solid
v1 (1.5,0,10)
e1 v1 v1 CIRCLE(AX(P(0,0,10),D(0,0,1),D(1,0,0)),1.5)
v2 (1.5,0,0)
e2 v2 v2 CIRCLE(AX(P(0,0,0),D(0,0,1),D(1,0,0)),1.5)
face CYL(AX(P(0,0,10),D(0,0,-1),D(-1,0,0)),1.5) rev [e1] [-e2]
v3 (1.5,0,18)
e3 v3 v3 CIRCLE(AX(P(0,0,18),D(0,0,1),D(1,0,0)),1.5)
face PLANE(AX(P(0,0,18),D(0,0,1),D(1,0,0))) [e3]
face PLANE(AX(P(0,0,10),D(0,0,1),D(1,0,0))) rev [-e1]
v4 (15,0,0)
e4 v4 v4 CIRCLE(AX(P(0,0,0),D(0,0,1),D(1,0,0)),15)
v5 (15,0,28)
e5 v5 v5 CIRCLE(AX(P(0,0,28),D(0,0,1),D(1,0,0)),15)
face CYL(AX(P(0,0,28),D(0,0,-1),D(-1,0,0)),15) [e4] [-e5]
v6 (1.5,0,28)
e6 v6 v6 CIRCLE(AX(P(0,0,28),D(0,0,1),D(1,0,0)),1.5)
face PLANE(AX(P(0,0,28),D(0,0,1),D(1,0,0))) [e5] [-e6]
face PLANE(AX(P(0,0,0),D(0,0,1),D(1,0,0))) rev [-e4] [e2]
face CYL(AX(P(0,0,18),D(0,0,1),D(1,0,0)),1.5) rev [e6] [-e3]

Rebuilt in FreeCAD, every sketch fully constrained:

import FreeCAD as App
import Part
import Sketcher
from FreeCAD import Vector
Q = App.Units.Quantity

doc = App.newDocument("Part")
body = doc.addObject("PartDesign::Body", "Body")

sketch1 = body.newObject("Sketcher::SketchObject", "Sketch")
sketch1.AttachmentSupport = (doc.getObject("XY_Plane"), [""])
sketch1.MapMode = "FlatFace"
sketch1.addGeometry(Part.Circle(Vector(0, 0, 0), Vector(0, 0, 1), 15), False)
sketch1.addConstraint(Sketcher.Constraint("Coincident", 0, 3, -1, 1))
sketch1.addConstraint(Sketcher.Constraint("Diameter", 0, Q("30 mm")))
pad1 = body.newObject("PartDesign::Pad", "Pad")
pad1.Profile = sketch1
pad1.Length = 28

sketch2 = body.newObject("Sketcher::SketchObject", "Sketch001")
sketch2.AttachmentSupport = (doc.getObject("XY_Plane"), [""])
sketch2.MapMode = "FlatFace"
sketch2.AttachmentOffset = App.Placement(Vector(0, 0, 28), App.Rotation())
sketch2.addGeometry(Part.Circle(Vector(0, 0, 0), Vector(0, 0, 1), 1.5), False)
sketch2.addConstraint(Sketcher.Constraint("Coincident", 0, 3, -1, 1))
sketch2.addConstraint(Sketcher.Constraint("Diameter", 0, Q("3 mm")))
pocket1 = body.newObject("PartDesign::Pocket", "Pocket")
pocket1.Profile = sketch2
pocket1.Length = 10

sketch3 = body.newObject("Sketcher::SketchObject", "Sketch002")
sketch3.AttachmentSupport = (doc.getObject("XY_Plane"), [""])
sketch3.MapMode = "FlatFace"
sketch3.AttachmentOffset = App.Placement(Vector(0, 0, 10), App.Rotation())
sketch3.addGeometry(Part.Circle(Vector(0, 0, 0), Vector(0, 0, 1), 1.5), False)
sketch3.addConstraint(Sketcher.Constraint("Coincident", 0, 3, -1, 1))
sketch3.addConstraint(Sketcher.Constraint("Diameter", 0, Q("3 mm")))
pocket2 = body.newObject("PartDesign::Pocket", "Pocket001")
pocket2.Profile = sketch3
pocket2.Length = 10

doc.recompute()
